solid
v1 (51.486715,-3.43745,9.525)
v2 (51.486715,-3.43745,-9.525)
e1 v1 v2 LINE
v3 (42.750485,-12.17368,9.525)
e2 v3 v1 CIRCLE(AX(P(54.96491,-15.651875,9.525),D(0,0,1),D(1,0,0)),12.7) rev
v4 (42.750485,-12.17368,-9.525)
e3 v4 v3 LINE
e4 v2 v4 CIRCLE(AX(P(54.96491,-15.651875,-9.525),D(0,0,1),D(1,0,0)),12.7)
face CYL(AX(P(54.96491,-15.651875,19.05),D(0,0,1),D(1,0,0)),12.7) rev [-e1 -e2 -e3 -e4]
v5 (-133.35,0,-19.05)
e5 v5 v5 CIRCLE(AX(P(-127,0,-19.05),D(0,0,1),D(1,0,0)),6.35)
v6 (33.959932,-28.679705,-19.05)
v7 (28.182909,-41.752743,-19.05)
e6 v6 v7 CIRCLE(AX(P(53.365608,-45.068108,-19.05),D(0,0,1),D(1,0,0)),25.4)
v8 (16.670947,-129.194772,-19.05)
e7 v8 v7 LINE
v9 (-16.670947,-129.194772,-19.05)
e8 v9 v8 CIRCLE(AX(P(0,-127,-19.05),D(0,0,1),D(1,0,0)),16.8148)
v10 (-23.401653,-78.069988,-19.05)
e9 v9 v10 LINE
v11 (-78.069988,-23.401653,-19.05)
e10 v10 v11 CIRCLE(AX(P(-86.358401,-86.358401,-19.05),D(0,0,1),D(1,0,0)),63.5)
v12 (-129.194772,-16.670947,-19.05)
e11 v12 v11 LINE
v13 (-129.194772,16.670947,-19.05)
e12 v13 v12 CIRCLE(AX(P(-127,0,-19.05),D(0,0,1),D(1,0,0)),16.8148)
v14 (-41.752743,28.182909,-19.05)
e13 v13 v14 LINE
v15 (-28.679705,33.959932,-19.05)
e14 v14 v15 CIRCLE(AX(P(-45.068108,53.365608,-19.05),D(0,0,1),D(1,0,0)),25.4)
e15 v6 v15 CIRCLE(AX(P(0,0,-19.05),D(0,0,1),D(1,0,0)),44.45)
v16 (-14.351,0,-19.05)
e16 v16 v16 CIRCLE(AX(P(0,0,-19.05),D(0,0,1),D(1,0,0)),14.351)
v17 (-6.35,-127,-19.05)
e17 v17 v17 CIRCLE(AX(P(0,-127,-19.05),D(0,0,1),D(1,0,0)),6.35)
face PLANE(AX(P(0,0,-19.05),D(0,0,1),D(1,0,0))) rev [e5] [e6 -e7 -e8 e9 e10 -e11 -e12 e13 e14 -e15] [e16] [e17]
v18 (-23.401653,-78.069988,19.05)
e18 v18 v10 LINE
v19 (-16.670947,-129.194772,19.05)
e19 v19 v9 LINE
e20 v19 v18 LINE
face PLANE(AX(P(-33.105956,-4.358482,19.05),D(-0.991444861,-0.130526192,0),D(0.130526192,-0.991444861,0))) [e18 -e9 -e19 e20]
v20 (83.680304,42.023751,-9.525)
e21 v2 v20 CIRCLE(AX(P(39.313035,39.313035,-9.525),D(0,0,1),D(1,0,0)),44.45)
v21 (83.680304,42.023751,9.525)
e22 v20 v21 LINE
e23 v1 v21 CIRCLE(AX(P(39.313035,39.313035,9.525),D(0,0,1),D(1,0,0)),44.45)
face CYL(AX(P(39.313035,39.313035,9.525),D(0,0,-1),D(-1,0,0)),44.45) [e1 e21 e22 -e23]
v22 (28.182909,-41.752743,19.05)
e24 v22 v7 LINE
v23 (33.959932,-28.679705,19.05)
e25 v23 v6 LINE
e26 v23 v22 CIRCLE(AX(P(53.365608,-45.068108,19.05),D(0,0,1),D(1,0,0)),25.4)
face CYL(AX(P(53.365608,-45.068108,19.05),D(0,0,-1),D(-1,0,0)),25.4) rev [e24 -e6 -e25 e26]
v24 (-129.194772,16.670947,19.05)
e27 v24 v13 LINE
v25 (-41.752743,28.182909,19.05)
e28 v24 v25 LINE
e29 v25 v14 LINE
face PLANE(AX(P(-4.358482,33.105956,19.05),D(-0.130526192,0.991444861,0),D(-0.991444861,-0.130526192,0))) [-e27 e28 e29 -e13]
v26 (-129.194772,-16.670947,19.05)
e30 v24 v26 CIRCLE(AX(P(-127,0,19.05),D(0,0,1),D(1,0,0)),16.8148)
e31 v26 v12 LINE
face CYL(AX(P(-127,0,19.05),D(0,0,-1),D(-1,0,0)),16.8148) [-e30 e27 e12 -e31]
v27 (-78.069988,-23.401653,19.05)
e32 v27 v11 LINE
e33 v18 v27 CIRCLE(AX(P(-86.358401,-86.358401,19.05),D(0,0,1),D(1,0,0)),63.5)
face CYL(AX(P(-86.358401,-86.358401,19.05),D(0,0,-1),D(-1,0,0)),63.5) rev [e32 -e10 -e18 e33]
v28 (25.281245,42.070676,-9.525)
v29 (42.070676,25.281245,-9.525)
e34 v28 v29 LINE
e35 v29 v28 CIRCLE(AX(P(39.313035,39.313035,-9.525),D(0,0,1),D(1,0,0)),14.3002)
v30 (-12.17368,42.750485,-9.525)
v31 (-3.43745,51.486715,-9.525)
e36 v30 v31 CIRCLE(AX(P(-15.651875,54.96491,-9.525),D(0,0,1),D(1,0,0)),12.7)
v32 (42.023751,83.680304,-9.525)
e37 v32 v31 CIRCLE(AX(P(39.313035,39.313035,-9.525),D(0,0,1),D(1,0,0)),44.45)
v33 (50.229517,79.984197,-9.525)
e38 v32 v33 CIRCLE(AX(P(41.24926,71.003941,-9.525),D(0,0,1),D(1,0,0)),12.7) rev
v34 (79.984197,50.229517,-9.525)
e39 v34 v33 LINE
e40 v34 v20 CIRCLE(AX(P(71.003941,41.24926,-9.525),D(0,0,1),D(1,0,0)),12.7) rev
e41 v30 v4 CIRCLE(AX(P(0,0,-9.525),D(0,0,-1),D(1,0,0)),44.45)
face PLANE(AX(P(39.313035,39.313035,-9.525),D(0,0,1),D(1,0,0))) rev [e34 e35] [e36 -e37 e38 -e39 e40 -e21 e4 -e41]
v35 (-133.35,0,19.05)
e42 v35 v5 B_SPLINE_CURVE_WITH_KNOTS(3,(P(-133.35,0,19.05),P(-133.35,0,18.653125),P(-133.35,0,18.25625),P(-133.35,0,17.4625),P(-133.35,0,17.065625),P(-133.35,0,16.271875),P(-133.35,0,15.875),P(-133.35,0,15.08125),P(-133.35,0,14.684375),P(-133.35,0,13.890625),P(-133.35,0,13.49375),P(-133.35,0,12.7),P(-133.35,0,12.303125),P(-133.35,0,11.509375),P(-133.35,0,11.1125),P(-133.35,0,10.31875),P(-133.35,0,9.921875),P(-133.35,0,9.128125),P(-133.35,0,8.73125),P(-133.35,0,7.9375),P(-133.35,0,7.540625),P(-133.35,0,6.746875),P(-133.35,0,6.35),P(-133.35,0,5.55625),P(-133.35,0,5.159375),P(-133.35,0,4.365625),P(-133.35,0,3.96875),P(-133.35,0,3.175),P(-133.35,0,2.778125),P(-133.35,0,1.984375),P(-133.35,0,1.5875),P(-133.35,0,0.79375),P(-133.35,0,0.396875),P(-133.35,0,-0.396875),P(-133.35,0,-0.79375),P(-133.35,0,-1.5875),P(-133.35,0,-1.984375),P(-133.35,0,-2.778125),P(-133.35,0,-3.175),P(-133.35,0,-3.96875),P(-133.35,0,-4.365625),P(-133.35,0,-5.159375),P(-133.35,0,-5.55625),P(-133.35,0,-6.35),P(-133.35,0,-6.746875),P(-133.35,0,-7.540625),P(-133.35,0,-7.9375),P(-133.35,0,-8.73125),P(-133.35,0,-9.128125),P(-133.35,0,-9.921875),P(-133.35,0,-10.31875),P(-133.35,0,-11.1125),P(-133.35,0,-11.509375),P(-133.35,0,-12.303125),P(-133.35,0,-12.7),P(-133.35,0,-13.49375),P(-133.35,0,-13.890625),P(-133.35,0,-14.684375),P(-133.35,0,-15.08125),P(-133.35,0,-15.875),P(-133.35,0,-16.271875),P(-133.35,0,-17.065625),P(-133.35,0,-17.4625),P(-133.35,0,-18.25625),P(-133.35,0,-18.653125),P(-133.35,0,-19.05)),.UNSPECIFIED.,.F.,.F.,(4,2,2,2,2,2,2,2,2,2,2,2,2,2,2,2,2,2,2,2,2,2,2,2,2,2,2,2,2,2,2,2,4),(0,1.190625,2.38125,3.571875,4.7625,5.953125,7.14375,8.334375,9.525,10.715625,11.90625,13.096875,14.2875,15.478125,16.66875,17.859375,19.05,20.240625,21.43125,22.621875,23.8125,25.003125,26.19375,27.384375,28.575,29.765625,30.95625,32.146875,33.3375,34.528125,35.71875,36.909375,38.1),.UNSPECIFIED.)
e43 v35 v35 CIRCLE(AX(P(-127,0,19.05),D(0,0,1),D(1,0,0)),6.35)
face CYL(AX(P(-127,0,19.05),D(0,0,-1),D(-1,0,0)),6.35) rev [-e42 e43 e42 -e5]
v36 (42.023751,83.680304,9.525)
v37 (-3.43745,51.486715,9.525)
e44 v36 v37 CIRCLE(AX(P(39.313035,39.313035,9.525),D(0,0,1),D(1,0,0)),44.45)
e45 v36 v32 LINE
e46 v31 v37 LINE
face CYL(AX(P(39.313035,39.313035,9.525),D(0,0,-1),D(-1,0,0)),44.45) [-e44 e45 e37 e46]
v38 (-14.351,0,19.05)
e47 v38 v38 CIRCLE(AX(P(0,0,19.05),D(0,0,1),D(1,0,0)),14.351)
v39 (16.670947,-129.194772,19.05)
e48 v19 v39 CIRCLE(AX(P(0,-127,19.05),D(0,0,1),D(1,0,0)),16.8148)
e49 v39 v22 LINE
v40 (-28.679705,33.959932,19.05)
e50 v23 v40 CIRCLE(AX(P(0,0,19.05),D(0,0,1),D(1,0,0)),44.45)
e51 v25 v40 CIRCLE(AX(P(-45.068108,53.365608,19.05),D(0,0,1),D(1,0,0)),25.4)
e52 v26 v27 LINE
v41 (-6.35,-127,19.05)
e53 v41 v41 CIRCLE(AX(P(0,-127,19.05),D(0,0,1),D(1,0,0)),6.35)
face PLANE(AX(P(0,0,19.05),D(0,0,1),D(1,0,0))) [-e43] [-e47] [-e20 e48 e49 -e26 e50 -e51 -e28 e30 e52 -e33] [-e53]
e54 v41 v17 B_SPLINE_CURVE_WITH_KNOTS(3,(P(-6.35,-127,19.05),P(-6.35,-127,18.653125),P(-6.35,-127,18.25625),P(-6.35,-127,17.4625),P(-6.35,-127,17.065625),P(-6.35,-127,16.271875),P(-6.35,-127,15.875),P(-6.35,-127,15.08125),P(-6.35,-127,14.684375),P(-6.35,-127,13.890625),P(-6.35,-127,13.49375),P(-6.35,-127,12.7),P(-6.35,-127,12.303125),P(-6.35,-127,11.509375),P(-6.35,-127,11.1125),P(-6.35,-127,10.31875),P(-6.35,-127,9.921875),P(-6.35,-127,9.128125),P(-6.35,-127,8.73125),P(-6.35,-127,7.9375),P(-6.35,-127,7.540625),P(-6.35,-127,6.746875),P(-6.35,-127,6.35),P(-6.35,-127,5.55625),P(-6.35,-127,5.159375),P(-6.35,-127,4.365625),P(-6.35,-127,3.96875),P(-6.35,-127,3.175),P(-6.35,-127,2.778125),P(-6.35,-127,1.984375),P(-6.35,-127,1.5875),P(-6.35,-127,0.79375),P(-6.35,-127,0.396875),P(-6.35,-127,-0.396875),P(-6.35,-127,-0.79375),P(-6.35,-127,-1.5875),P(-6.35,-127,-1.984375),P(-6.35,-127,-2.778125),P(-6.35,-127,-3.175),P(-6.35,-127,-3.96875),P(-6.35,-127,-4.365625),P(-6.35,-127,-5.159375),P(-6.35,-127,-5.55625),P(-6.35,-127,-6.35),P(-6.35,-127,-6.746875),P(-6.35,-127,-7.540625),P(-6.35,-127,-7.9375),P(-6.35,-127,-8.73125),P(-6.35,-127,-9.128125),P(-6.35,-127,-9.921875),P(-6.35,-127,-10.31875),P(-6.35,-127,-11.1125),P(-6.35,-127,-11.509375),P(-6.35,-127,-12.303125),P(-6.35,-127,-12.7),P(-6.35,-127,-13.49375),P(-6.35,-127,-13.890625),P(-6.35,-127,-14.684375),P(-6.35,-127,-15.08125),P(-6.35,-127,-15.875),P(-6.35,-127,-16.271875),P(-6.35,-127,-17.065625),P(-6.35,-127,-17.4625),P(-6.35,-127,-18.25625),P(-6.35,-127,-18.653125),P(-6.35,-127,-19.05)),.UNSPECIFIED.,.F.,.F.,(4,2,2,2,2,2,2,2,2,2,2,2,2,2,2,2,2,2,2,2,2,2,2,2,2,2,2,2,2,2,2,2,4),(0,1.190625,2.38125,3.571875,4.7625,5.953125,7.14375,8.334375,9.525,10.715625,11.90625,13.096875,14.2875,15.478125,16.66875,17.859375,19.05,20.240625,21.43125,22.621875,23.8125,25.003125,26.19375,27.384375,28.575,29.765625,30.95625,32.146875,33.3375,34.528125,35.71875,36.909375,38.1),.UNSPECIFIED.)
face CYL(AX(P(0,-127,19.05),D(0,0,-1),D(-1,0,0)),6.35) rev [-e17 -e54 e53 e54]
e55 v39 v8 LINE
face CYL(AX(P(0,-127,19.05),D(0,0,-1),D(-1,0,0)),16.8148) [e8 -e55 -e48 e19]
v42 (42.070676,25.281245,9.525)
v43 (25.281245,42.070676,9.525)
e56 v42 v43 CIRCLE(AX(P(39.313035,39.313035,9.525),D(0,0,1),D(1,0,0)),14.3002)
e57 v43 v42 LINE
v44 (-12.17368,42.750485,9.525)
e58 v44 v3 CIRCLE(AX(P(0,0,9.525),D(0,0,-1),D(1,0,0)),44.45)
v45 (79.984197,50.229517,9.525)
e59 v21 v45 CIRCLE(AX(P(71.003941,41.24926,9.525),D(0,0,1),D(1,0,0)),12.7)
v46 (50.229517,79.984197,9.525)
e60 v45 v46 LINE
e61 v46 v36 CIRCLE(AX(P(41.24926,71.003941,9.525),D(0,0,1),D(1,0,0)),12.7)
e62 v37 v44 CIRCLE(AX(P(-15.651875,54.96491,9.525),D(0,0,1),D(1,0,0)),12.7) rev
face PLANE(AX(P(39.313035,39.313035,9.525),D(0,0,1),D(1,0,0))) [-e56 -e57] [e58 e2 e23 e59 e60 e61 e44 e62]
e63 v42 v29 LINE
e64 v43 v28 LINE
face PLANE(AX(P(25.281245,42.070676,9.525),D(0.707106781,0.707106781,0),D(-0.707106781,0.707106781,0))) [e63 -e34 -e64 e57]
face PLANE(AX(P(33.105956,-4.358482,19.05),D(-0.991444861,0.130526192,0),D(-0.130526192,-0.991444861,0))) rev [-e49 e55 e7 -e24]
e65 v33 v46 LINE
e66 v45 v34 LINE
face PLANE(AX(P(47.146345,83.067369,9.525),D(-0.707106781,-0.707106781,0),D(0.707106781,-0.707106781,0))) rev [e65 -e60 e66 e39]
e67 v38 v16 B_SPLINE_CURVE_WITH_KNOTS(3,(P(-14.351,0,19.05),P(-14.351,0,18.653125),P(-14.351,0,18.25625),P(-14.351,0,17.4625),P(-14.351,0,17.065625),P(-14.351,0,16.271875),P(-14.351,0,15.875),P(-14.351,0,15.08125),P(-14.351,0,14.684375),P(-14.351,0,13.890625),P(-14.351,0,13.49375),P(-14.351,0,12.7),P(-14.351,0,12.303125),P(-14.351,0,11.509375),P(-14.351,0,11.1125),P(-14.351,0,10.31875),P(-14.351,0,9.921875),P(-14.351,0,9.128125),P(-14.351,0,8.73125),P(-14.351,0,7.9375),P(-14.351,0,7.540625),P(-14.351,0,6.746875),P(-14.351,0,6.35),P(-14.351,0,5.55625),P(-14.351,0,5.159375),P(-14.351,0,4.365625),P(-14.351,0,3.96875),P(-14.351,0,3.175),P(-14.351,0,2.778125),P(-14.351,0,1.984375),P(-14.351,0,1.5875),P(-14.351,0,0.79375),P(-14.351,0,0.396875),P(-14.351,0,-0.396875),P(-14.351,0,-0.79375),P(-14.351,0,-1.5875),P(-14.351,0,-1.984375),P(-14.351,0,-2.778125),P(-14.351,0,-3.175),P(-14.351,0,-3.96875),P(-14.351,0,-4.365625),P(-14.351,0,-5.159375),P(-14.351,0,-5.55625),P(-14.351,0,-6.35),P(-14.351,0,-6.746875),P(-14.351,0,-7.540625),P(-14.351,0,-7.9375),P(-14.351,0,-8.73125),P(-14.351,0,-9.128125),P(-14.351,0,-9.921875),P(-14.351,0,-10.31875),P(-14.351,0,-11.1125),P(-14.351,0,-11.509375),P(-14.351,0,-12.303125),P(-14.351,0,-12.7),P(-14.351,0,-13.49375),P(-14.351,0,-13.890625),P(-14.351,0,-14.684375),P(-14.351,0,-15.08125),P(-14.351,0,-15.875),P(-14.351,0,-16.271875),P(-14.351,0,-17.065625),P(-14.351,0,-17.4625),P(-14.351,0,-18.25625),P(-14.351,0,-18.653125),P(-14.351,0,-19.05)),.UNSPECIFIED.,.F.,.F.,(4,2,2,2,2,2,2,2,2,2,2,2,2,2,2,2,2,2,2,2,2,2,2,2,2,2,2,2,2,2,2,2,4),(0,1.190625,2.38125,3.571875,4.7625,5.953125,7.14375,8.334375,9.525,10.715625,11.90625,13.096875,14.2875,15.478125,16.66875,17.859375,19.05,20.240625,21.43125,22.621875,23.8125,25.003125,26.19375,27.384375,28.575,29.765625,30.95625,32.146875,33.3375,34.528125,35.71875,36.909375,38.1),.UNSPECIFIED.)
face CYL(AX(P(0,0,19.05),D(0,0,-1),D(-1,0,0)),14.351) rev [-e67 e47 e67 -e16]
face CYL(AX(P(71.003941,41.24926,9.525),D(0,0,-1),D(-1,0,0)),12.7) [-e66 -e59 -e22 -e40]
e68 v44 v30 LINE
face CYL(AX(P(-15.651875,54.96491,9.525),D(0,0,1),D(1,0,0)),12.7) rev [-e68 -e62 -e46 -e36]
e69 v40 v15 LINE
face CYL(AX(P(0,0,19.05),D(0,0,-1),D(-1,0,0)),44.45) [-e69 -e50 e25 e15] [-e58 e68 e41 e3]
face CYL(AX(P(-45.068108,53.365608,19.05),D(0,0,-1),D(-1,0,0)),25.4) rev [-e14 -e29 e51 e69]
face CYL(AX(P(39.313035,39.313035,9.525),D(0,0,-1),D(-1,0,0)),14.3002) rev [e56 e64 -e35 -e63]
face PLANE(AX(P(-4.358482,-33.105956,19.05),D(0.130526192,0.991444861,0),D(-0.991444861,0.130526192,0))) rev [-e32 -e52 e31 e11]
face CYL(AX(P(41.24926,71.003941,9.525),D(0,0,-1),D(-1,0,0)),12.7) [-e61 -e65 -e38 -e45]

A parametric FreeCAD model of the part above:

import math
import FreeCAD as App
import Part
import Sketcher
from FreeCAD import Vector
Q = App.Units.Quantity


def edges_at(feature, points):
    """Names of the edges that pass closest to the given points."""
    edges = feature.Shape.Edges
    near = lambda p: min(range(len(edges)), key=lambda i: edges[i].distToShape(Part.Vertex(*p))[0])
    return sorted({f"Edge{near(p) + 1}" for p in points})

doc = App.newDocument("Part")
body = doc.addObject("PartDesign::Body", "Body")

sketch1 = body.newObject("Sketcher::SketchObject", "Sketch")
sketch1.AttachmentSupport = (doc.getObject("XY_Plane"), [""])
sketch1.MapMode = "FlatFace"
sketch1.addGeometry(Part.ArcOfCircle(Part.Circle(Vector(53.365608, -45.068108, 0), Vector(0, 0, 1), 25.4), math.radians(139.818374), math.radians(172.5)), False)
sketch1.addGeometry(Part.ArcOfCircle(Part.Circle(Vector(0, 0, 0), Vector(0, 0, 1), 44.45), math.radians(-40.181626), math.radians(130.181626)), False)
sketch1.addGeometry(Part.ArcOfCircle(Part.Circle(Vector(-45.068108, 53.365608, 0), Vector(0, 0, 1), 25.4), math.radians(-82.5), math.radians(-49.818374)), False)
sketch1.addGeometry(Part.LineSegment(Vector(-41.752743, 28.182909, 0), Vector(-129.194772, 16.670947, 0)), False)
sketch1.addGeometry(Part.ArcOfCircle(Part.Circle(Vector(-127, 0, 0), Vector(0, 0, 1), 16.8148), math.radians(97.5), math.radians(262.5)), False)
sketch1.addGeometry(Part.LineSegment(Vector(-129.194772, -16.670947, 0), Vector(-78.069988, -23.401653, 0)), False)
sketch1.addGeometry(Part.ArcOfCircle(Part.Circle(Vector(-86.358401, -86.358401, 0), Vector(0, 0, 1), 63.5), math.radians(7.5), math.radians(82.5)), False)
sketch1.addGeometry(Part.LineSegment(Vector(-23.401653, -78.069988, 0), Vector(-16.670947, -129.194772, 0)), False)
sketch1.addGeometry(Part.ArcOfCircle(Part.Circle(Vector(0, -127, 0), Vector(0, 0, 1), 16.8148), math.radians(-172.5), math.radians(-7.5)), False)
sketch1.addGeometry(Part.LineSegment(Vector(16.670947, -129.194772, 0), Vector(28.182909, -41.752743, 0)), False)
sketch1.addGeometry(Part.Circle(Vector(0, -127, 0), Vector(0, 0, 1), 6.35), False)
sketch1.addGeometry(Part.Circle(Vector(0, 0, 0), Vector(0, 0, 1), 14.351), False)
sketch1.addGeometry(Part.Circle(Vector(-127, 0, 0), Vector(0, 0, 1), 6.35), False)
sketch1.addConstraint(Sketcher.Constraint("Tangent", 0, 1, 1, 1))
sketch1.addConstraint(Sketcher.Constraint("Tangent", 1, 2, 2, 2))
sketch1.addConstraint(Sketcher.Constraint("Tangent", 2, 1, 3, 1))
sketch1.addConstraint(Sketcher.Constraint("Tangent", 3, 2, 4, 1))
sketch1.addConstraint(Sketcher.Constraint("Tangent", 4, 2, 5, 1))
sketch1.addConstraint(Sketcher.Constraint("Tangent", 5, 2, 6, 2))
sketch1.addConstraint(Sketcher.Constraint("Tangent", 6, 1, 7, 1))
sketch1.addConstraint(Sketcher.Constraint("Tangent", 7, 2, 8, 1))
sketch1.addConstraint(Sketcher.Constraint("Tangent", 8, 2, 9, 1))
sketch1.addConstraint(Sketcher.Constraint("Tangent", 9, 2, 0, 2))
sketch1.addConstraint(Sketcher.Constraint("Coincident", 1, 3, -1, 1))
sketch1.addConstraint(Sketcher.Constraint("Coincident", 11, 3, -1, 1))
sketch1.addConstraint(Sketcher.Constraint("Coincident", 10, 3, 8, 3))
sketch1.addConstraint(Sketcher.Constraint("Coincident", 12, 3, 4, 3))
sketch1.addConstraint(Sketcher.Constraint("Equal", 0, 2))
sketch1.addConstraint(Sketcher.Constraint("Equal", 4, 8))
sketch1.addConstraint(Sketcher.Constraint("Equal", 10, 12))
sketch1.addConstraint(Sketcher.Constraint("Symmetric", 7, 2, 8, 2, -2))
sketch1.addConstraint(Sketcher.Constraint("Symmetric", 3, 2, 4, 2, -1))
sketch1.addConstraint(Sketcher.Constraint("Perpendicular", 3, 7))
sketch1.addConstraint(Sketcher.Constraint("Equal", 5, 7))
sketch1.addConstraint(Sketcher.Constraint("Radius", 0, Q("1 in")))
sketch1.addConstraint(Sketcher.Constraint("Diameter", 10, Q("0.5 in")))
sketch1.addConstraint(Sketcher.Constraint("Radius", 6, Q("2.5 in")))
sketch1.addConstraint(Sketcher.Constraint("Diameter", 11, Q("1.13 in")))
sketch1.addConstraint(Sketcher.Constraint("Radius", 1, Q("1.75 in")))
sketch1.addConstraint(Sketcher.Constraint("DistanceX", 4, 3, -1, 1, Q("5 in")))
sketch1.addConstraint(Sketcher.Constraint("Radius", 4, Q("0.662 in")))
sketch1.addConstraint(Sketcher.Constraint("Angle", 3, Q("-172.5 deg")))
pad1 = body.newObject("PartDesign::Pad", "Pad")
pad1.Profile = sketch1
pad1.Length = Q("1.5 in")
pad1.Midplane = True

sketch2 = body.newObject("Sketcher::SketchObject", "Sketch001")
sketch2.AttachmentSupport = (doc.getObject("XY_Plane"), [""])
sketch2.MapMode = "FlatFace"
sketch2.addGeometry(Part.LineSegment(Vector(83.067369, 47.146345, 0), Vector(47.146345, 83.067369, 0)), False)
sketch2.addGeometry(Part.ArcOfCircle(Part.Circle(Vector(39.313035, 39.313035, 0), Vector(0, 0, 1), 44.45), math.radians(79.849905), math.radians(173.710699)), False)
sketch2.addGeometry(Part.ArcOfCircle(Part.Circle(Vector(0, 0, 0), Vector(0, 0, 1), 44.45), math.radians(-6.289301), math.radians(96.289301)), False)
sketch2.addGeometry(Part.ArcOfCircle(Part.Circle(Vector(39.313035, 39.313035, 0), Vector(0, 0, 1), 44.45), math.radians(-83.710699), math.radians(10.150095)), False)
sketch2.addGeometry(Part.ArcOfCircle(Part.Circle(Vector(39.313035, 39.313035, 0), Vector(0, 0, 1), 14.3002), math.radians(-78.881468), math.radians(168.881468)), False)
sketch2.addGeometry(Part.LineSegment(Vector(42.070676, 25.281245, 0), Vector(25.281245, 42.070676, 0)), False)
sketch2.addConstraint(Sketcher.Constraint("Coincident", 0, 2, 1, 1))
sketch2.addConstraint(Sketcher.Constraint("Coincident", 1, 2, 2, 2))
sketch2.addConstraint(Sketcher.Constraint("Coincident", 2, 1, 3, 1))
sketch2.addConstraint(Sketcher.Constraint("Coincident", 3, 2, 0, 1))
sketch2.addConstraint(Sketcher.Constraint("Coincident", 4, 1, 5, 1))
sketch2.addConstraint(Sketcher.Constraint("Coincident", 5, 2, 4, 2))
sketch2.addConstraint(Sketcher.Constraint("Coincident", 2, 3, -1, 1))
sketch2.addConstraint(Sketcher.Constraint("Coincident", 3, 3, 1, 3))
sketch2.addConstraint(Sketcher.Constraint("Coincident", 4, 3, 1, 3))
sketch2.addConstraint(Sketcher.Constraint("Equal", 1, 2))
sketch2.addConstraint(Sketcher.Constraint("Equal", 2, 3))
sketch2.addConstraint(Sketcher.Constraint("Parallel", 0, 5))
sketch2.addConstraint(Sketcher.Constraint("Radius", 1, Q("1.75 in")))
sketch2.addConstraint(Sketcher.Constraint("Distance", 0, Q("2 in")))
sketch2.addConstraint(Sketcher.Constraint("Angle", 0, Q("135 deg")))
sketch2.addConstraint(Sketcher.Constraint("Radius", 4, Q("0.563 in")))
sketch2.addConstraint(Sketcher.Constraint("DistanceX", 4, 1, 2, 1, 2.111798))
sketch2.addConstraint(Sketcher.Constraint("DistanceY", 5, 2, 1, 2, 2.111798))
sketch2.addConstraint(Sketcher.Constraint("Distance", 5, 23.743842))
pad2 = body.newObject("PartDesign::Pad", "Pad001")
pad2.Profile = sketch2
pad2.Length = Q("0.75 in")
pad2.Midplane = True
doc.recompute()

fillet = body.newObject("PartDesign::Fillet", "Fillet")
fillet.Base = (pad2, edges_at(pad2, [
    (47.146, 83.067, 0),
    (-4.869, 44.182, 0),
    (44.182, -4.869, 0),
    (83.067, 47.146, 0),
]))
fillet.Radius = Q("0.5 in")

doc.recompute()
